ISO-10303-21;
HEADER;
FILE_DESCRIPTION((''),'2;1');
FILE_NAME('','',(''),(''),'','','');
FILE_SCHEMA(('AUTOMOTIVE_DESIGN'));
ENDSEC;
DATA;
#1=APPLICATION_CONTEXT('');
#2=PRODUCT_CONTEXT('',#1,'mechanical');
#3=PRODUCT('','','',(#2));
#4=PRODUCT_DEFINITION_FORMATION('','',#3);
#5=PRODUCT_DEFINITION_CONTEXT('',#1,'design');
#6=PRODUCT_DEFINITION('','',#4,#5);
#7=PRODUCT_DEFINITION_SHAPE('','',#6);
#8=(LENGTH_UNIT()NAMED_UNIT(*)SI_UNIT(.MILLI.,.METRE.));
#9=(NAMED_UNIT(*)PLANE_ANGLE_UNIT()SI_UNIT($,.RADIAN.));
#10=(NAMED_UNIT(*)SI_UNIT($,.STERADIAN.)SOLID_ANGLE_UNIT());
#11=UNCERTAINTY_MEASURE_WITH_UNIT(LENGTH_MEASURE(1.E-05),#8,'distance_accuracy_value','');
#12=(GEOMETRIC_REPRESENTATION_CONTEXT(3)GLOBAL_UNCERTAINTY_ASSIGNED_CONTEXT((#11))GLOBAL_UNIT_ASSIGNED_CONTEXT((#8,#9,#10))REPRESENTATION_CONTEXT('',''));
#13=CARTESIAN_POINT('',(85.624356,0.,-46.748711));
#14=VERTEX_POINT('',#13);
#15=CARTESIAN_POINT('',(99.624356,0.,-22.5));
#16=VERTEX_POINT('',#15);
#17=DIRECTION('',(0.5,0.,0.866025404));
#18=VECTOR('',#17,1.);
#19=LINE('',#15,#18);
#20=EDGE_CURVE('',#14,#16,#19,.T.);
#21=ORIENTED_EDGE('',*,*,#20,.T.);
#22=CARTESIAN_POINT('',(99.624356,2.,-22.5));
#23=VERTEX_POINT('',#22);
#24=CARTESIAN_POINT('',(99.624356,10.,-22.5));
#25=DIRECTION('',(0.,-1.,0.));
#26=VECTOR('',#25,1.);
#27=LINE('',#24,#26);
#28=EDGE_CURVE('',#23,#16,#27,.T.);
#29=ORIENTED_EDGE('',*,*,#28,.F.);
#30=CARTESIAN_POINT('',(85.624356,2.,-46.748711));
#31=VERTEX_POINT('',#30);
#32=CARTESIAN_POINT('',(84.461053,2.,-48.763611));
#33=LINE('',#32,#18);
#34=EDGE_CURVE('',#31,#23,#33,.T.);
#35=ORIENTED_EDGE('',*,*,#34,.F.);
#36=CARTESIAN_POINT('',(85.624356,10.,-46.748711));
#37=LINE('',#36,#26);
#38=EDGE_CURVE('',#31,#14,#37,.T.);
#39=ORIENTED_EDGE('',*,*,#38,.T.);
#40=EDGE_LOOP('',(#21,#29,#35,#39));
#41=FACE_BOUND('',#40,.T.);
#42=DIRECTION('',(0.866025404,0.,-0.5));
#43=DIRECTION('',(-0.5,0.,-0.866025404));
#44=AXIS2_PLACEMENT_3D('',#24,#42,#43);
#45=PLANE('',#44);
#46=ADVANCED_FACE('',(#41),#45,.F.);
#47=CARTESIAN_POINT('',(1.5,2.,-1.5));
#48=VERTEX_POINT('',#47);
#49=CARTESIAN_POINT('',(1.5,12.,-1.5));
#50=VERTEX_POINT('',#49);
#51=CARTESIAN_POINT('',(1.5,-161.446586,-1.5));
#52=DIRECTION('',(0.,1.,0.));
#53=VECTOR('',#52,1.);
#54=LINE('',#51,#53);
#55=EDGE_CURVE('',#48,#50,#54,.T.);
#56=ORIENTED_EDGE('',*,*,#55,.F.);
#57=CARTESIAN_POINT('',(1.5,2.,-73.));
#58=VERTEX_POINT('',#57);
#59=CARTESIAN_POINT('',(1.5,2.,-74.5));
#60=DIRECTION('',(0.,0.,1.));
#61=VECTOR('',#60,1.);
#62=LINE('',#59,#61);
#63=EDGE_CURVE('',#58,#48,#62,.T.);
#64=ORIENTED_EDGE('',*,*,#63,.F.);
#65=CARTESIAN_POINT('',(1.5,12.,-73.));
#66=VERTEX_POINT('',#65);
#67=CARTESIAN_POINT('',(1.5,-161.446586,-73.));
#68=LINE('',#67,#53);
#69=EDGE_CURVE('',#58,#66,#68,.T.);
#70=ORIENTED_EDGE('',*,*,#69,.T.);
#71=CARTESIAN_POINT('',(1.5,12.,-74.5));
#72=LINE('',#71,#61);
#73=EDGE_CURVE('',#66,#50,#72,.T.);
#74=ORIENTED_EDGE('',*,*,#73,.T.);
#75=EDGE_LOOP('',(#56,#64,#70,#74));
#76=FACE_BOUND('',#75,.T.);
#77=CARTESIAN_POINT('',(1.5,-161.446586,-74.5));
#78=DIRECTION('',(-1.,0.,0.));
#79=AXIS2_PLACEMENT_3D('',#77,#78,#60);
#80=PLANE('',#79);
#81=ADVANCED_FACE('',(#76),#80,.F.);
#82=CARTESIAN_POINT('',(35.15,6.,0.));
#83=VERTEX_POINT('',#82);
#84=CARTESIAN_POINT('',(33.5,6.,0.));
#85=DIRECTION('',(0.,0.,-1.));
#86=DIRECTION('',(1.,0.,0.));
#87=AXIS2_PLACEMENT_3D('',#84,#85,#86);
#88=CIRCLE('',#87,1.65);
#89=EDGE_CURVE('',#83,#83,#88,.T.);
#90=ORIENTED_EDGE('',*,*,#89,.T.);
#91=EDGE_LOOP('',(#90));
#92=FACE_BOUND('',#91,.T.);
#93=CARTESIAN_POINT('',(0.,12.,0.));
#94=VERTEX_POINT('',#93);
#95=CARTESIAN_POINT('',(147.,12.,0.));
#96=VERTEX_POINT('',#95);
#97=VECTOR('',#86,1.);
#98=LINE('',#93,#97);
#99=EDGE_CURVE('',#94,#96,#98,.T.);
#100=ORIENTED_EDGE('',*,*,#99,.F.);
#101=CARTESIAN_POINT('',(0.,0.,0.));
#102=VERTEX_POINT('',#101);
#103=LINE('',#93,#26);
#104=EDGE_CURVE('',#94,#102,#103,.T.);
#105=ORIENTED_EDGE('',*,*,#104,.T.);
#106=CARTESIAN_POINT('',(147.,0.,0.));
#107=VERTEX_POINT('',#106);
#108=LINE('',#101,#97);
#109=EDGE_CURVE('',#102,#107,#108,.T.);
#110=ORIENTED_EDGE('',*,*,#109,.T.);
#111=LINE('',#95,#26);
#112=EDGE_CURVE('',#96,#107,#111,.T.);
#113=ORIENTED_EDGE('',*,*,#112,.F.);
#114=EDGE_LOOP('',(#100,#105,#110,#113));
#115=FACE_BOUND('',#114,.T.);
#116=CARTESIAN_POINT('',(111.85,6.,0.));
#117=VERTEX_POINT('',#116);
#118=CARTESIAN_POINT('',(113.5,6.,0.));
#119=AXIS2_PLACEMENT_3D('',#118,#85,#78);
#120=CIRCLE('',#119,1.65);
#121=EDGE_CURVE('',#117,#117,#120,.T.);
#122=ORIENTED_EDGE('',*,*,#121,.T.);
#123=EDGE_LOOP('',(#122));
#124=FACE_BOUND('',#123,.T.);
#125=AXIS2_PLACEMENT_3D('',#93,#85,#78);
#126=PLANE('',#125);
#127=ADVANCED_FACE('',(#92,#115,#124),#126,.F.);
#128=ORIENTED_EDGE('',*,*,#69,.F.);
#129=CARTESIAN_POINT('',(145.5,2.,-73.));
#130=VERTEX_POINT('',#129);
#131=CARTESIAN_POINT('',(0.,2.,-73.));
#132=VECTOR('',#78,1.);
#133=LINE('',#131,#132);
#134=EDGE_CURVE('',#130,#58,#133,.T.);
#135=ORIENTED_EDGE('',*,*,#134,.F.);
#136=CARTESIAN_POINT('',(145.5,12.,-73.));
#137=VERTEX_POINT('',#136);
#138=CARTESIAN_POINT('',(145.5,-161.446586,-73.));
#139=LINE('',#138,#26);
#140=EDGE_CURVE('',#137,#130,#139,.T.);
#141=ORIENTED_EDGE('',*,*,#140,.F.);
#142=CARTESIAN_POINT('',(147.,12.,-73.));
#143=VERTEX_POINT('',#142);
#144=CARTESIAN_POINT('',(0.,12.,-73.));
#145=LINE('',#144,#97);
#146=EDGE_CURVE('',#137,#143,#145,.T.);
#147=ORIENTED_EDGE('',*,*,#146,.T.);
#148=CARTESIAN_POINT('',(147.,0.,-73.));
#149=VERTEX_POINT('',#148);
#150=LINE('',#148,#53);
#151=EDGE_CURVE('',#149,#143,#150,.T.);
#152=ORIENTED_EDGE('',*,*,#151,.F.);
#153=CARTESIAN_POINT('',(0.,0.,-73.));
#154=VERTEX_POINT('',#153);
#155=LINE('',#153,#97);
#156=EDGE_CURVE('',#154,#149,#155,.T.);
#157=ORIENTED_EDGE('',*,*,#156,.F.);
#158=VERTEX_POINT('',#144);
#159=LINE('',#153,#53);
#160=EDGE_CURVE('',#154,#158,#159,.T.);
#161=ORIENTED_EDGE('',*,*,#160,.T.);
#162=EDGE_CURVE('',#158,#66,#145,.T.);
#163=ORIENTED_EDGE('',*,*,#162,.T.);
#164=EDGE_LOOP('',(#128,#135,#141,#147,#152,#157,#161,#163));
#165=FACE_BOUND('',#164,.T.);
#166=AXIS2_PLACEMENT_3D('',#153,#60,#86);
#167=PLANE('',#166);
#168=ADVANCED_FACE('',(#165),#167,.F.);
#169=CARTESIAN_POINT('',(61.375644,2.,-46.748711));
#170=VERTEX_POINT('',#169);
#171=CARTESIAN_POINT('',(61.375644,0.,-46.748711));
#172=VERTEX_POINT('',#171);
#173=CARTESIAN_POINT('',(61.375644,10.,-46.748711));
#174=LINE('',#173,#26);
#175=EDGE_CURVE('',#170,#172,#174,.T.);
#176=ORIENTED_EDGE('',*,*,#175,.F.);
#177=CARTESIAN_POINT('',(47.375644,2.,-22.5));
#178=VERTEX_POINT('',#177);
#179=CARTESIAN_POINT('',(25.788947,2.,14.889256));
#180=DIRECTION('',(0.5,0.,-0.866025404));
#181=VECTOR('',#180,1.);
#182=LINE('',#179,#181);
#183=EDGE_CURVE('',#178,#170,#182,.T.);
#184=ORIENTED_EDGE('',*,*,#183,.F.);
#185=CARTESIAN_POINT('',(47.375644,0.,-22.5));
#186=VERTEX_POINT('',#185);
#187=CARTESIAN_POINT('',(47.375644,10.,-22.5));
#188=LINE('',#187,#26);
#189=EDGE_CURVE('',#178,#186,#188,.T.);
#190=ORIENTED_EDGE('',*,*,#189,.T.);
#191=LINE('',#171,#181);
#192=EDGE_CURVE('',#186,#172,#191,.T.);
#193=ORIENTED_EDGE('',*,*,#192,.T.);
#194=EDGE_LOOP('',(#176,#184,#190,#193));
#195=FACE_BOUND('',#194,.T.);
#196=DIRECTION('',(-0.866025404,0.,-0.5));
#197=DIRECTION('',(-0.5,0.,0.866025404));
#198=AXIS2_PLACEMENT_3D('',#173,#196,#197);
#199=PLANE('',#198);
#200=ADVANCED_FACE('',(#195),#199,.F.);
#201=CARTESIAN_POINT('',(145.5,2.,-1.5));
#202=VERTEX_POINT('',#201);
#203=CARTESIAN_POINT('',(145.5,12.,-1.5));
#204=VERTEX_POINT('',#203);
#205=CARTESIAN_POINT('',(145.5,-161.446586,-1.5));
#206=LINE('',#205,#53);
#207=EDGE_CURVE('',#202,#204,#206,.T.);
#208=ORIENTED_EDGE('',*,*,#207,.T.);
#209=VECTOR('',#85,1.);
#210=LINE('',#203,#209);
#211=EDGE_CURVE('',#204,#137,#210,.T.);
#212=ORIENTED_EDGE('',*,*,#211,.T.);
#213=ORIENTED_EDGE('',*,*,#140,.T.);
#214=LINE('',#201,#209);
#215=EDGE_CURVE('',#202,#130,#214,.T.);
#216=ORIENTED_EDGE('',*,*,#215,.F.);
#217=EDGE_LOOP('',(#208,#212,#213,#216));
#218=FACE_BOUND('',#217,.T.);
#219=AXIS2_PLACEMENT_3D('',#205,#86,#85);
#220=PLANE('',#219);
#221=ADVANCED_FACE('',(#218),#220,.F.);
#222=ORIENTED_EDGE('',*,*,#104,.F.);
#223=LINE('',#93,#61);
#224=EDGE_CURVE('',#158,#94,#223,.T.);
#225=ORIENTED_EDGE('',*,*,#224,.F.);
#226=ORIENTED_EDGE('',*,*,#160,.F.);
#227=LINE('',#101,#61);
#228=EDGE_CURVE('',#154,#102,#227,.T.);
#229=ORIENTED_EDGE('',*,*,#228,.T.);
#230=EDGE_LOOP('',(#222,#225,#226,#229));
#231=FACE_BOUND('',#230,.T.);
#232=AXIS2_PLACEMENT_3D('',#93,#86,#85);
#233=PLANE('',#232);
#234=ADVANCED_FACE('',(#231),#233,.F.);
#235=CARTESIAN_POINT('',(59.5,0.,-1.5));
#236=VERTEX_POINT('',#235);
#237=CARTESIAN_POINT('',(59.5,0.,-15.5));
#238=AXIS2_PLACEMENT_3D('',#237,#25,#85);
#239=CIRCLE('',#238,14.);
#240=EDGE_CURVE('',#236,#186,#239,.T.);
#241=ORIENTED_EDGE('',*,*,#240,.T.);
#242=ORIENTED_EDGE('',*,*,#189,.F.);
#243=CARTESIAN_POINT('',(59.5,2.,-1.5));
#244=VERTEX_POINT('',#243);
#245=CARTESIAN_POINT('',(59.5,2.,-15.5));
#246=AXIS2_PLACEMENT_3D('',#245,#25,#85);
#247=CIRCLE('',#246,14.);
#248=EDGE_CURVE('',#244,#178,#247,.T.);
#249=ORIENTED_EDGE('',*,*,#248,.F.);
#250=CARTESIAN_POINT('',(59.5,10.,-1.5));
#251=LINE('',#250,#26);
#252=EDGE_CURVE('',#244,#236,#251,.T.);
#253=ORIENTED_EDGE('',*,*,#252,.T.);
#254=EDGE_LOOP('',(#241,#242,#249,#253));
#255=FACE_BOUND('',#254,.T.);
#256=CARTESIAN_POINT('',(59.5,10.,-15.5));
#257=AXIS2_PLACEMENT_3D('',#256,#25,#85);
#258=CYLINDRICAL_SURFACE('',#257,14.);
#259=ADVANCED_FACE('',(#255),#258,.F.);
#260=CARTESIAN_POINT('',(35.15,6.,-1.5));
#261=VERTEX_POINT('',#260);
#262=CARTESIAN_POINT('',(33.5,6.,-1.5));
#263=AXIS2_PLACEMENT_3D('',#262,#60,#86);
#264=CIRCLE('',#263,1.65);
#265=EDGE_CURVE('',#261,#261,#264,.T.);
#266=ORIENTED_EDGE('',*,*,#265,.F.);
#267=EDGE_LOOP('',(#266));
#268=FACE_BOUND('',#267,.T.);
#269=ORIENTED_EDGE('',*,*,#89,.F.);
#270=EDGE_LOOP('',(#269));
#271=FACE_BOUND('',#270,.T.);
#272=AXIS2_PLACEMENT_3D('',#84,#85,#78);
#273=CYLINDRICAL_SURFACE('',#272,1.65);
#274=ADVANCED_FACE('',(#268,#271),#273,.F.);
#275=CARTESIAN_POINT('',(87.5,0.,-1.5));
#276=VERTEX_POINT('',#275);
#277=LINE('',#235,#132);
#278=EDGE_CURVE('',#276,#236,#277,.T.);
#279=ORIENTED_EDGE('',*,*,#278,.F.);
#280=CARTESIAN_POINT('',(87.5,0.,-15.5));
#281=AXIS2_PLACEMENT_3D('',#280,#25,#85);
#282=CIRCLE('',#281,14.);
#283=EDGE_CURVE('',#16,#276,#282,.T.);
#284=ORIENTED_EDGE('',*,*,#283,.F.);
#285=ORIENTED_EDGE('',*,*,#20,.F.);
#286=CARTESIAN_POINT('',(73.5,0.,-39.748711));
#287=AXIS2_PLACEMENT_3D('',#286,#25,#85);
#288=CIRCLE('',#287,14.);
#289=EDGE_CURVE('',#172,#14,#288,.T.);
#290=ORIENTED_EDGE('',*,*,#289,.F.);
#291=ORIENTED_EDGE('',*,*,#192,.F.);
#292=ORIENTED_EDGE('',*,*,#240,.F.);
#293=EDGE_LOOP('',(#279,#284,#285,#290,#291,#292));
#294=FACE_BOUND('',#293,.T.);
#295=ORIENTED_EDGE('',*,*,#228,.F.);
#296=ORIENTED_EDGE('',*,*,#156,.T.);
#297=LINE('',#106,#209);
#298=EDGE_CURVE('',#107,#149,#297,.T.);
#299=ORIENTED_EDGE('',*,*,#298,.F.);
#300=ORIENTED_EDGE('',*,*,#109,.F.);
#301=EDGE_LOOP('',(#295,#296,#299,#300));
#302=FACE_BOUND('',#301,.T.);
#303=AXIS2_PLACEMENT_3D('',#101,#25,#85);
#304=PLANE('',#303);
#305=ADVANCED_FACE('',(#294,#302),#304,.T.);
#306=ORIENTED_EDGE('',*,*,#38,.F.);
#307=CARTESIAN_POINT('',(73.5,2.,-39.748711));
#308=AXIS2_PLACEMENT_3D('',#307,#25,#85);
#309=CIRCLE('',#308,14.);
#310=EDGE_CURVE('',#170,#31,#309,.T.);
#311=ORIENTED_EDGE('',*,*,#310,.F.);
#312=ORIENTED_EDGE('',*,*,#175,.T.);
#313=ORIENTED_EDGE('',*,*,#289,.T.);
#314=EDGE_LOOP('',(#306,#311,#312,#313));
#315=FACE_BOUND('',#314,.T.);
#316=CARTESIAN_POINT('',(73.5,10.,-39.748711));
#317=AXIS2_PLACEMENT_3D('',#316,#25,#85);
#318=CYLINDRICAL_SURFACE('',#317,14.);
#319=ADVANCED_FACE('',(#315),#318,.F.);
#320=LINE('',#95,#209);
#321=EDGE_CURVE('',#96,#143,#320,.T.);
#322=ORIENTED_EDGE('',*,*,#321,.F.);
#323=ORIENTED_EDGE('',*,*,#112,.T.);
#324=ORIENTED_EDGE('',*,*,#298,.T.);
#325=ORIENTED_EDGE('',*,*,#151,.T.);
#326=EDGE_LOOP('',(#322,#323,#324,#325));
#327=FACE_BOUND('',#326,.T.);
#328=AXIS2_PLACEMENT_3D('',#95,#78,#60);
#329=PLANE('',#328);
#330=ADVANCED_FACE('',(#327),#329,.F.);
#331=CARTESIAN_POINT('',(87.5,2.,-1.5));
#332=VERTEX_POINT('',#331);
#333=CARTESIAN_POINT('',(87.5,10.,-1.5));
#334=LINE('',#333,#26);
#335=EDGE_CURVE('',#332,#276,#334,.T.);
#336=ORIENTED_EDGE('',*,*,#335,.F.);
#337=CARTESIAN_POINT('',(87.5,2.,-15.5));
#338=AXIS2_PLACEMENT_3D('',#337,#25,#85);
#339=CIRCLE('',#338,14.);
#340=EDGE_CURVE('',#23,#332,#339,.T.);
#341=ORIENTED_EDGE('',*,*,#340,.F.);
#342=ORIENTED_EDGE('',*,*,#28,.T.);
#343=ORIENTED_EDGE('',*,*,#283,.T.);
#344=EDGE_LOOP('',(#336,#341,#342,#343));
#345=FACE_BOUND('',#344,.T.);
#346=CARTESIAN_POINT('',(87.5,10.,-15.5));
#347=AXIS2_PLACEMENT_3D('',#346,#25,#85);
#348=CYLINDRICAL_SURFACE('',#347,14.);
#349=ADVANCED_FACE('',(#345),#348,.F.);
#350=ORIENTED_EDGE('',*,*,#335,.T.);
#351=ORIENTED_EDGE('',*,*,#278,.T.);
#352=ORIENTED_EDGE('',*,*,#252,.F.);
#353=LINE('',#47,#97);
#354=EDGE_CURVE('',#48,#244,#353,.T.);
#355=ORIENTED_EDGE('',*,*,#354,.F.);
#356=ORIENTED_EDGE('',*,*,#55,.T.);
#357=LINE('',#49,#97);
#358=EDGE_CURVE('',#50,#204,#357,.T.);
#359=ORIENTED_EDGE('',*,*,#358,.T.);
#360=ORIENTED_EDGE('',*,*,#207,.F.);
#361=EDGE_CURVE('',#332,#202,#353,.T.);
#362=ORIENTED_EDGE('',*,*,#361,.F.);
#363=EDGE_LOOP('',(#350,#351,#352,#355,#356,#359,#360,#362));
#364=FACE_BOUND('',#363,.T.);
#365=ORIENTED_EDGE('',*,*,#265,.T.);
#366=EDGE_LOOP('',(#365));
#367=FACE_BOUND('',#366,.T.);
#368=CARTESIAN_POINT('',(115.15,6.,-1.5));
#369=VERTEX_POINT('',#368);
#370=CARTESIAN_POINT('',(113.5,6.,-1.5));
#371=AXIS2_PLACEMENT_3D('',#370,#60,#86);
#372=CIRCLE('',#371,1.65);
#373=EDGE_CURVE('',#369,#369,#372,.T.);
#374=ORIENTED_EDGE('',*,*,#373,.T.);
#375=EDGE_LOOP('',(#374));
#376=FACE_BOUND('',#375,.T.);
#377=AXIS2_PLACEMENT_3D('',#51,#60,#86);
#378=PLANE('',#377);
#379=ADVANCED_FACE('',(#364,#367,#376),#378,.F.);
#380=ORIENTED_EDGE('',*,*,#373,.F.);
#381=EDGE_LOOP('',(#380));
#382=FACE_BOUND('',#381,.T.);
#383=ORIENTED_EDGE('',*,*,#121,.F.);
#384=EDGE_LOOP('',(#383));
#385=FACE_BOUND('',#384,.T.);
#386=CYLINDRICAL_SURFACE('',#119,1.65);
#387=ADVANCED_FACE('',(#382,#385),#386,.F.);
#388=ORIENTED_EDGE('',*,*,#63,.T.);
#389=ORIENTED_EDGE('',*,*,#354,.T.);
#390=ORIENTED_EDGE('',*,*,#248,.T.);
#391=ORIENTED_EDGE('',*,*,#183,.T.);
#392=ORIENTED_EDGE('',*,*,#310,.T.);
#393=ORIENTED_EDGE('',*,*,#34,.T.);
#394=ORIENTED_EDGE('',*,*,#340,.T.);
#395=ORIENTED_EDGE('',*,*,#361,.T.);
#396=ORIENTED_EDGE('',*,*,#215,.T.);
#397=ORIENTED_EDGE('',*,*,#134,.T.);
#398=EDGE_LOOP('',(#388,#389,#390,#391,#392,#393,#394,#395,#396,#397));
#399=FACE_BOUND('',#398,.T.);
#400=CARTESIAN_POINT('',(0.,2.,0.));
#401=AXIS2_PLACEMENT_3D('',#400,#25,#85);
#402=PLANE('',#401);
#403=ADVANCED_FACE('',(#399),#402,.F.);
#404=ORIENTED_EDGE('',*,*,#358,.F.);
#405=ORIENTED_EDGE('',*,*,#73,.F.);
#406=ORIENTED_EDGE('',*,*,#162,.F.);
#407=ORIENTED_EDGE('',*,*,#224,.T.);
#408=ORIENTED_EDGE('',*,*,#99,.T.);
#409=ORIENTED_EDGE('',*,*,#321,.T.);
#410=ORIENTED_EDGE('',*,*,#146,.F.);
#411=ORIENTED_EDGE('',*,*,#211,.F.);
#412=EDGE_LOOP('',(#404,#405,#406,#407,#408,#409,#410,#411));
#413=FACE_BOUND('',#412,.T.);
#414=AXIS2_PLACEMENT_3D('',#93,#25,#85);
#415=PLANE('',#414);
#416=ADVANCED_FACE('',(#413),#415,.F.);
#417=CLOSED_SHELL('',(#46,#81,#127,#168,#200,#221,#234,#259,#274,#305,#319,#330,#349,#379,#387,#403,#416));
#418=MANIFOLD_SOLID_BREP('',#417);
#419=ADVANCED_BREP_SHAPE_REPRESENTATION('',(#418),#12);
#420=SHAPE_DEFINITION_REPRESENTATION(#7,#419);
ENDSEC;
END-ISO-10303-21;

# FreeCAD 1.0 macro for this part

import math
import FreeCAD as App
import Part
import Sketcher
from FreeCAD import Vector
Q = App.Units.Quantity

doc = App.newDocument("Part")
body = doc.addObject("PartDesign::Body", "Body")

sketch1 = body.newObject("Sketcher::SketchObject", "Sketch")
sketch1.AttachmentSupport = (doc.getObject("XZ_Plane"), [""])
sketch1.MapMode = "FlatFace"
sketch1.addGeometry([
    Part.LineSegment(Vector(0, -76, 0), Vector(0, 0, 0)),
    Part.LineSegment(Vector(0, 0, 0), Vector(147, 0, 0)),
    Part.LineSegment(Vector(147, 0, 0), Vector(147, -76, 0)),
    Part.LineSegment(Vector(147, -76, 0), Vector(0, -76, 0)),
], False)
sketch1.addConstraint([
    Sketcher.Constraint("Coincident", 0, 2, 1, 1),
    Sketcher.Constraint("Coincident", 1, 2, 2, 1),
    Sketcher.Constraint("Coincident", 2, 2, 3, 1),
    Sketcher.Constraint("Coincident", 3, 2, 0, 1),
    Sketcher.Constraint("Vertical", 0),
    Sketcher.Constraint("Horizontal", 1),
    Sketcher.Constraint("Vertical", 2),
    Sketcher.Constraint("Horizontal", 3),
    Sketcher.Constraint("Coincident", 0, 2, -1, 1),
    Sketcher.Constraint("DistanceX", 1, 1, 1, 2, Q("147 mm")),
    Sketcher.Constraint("DistanceY", 0, 1, 0, 2, Q("76 mm")),
])
pad1 = body.newObject("PartDesign::Pad", "Pad")
pad1.Profile = sketch1
pad1.Length = 12
pad1.Reversed = True

sketch2 = body.newObject("Sketcher::SketchObject", "Sketch001")
sketch2.AttachmentSupport = (doc.getObject("XZ_Plane"), [""])
sketch2.MapMode = "FlatFace"
sketch2.AttachmentOffset = App.Placement(Vector(0, 0, -12), App.Rotation())
sketch2.addGeometry([
    Part.LineSegment(Vector(2, -74, 0), Vector(2, -2, 0)),
    Part.LineSegment(Vector(2, -2, 0), Vector(146, -2, 0)),
    Part.LineSegment(Vector(146, -2, 0), Vector(146, -74, 0)),
    Part.LineSegment(Vector(146, -74, 0), Vector(2, -74, 0)),
], False)
sketch2.addConstraint([
    Sketcher.Constraint("Coincident", 0, 2, 1, 1),
    Sketcher.Constraint("Coincident", 1, 2, 2, 1),
    Sketcher.Constraint("Coincident", 2, 2, 3, 1),
    Sketcher.Constraint("Coincident", 3, 2, 0, 1),
    Sketcher.Constraint("Vertical", 0),
    Sketcher.Constraint("Horizontal", 1),
    Sketcher.Constraint("Vertical", 2),
    Sketcher.Constraint("Horizontal", 3),
    Sketcher.Constraint("DistanceX", 1, 1, 1, 2, Q("144 mm")),
    Sketcher.Constraint("DistanceY", 0, 1, 0, 2, Q("73 mm")),
    Sketcher.Constraint("DistanceX", -1, 1, 0, 2, Q("1.5 mm")),
    Sketcher.Constraint("DistanceY", 0, 2, -1, 1, Q("1.5 mm")),
])
pocket1 = body.newObject("PartDesign::Pocket", "Pocket")
pocket1.Profile = sketch2
pocket1.Length = 10
pocket1.Reversed = True

sketch3 = body.newObject("Sketcher::SketchObject", "Sketch002")
sketch3.AttachmentSupport = (doc.getObject("XY_Plane"), [""])
sketch3.MapMode = "FlatFace"
sketch3.AttachmentOffset = App.Placement(Vector(0, 0, -76), App.Rotation())
sketch3.addGeometry([
    Part.Circle(Vector(113.5, 6, 0), Vector(0, 0, 1), 1.6),
    Part.Circle(Vector(33.5, 6, 0), Vector(0, 0, 1), 1.6),
], False)
sketch3.addConstraint([
    Sketcher.Constraint("Equal", 0, 1),
    Sketcher.Constraint("Horizontal", 0, 3, 1, 3),
    Sketcher.Constraint("Diameter", 0, Q("3.3 mm")),
    Sketcher.Constraint("DistanceY", -1, 1, 0, 3, Q("6 mm")),
    Sketcher.Constraint("DistanceX", 1, 3, 0, 3, Q("80 mm")),
    Sketcher.Constraint("DistanceX", -1, 1, 0, 3, Q("113.5 mm")),
])
pocket2 = body.newObject("PartDesign::Pocket", "Pocket001")
pocket2.Profile = sketch3
pocket2.Type = "ThroughAll"
pocket2.Reversed = True

sketch4 = body.newObject("Sketcher::SketchObject", "Sketch003")
sketch4.AttachmentSupport = (doc.getObject("XZ_Plane"), [""])
sketch4.MapMode = "FlatFace"
sketch4.addGeometry([
    Part.LineSegment(Vector(47, -22, 0), Vector(61, -47, 0)),
    Part.ArcOfCircle(Part.Circle(Vector(74, -40, 0), Vector(0, 0, 1), 14), math.radians(-150), math.radians(-30)),
    Part.LineSegment(Vector(86, -47, 0), Vector(100, -22, 0)),
    Part.ArcOfCircle(Part.Circle(Vector(88, -16, 0), Vector(0, 0, 1), 14), math.radians(-30), math.radians(90)),
    Part.LineSegment(Vector(88, -2, 0), Vector(60, -2, 0)),
    Part.ArcOfCircle(Part.Circle(Vector(60, -16, 0), Vector(0, 0, 1), 14), math.radians(90), math.radians(210)),
], False)
sketch4.addConstraint([
    Sketcher.Constraint("Tangent", 0, 2, 1, 1),
    Sketcher.Constraint("Tangent", 1, 2, 2, 1),
    Sketcher.Constraint("Tangent", 2, 2, 3, 1),
    Sketcher.Constraint("Tangent", 3, 2, 4, 1),
    Sketcher.Constraint("Tangent", 4, 2, 5, 1),
    Sketcher.Constraint("Tangent", 5, 2, 0, 1),
    Sketcher.Constraint("Horizontal", 4),
    Sketcher.Constraint("Equal", 1, 3),
    Sketcher.Constraint("Equal", 3, 5),
    Sketcher.Constraint("Horizontal", 0, 2, 1, 2),
    Sketcher.Constraint("Radius", 1, Q("14 mm")),
    Sketcher.Constraint("DistanceX", 4, 2, 4, 1, Q("28 mm")),
    Sketcher.Constraint("Angle", 0, Q("-60 deg")),
    Sketcher.Constraint("DistanceX", -1, 1, 1, 3, Q("73.5 mm")),
    Sketcher.Constraint("DistanceY", 3, 3, -1, 1, Q("15.5 mm")),
])
pocket3 = body.newObject("PartDesign::Pocket", "Pocket002")
pocket3.Profile = sketch4
pocket3.Length = 10

sketch5 = body.newObject("Sketcher::SketchObject", "Sketch004")
sketch5.AttachmentSupport = (doc.getObject("XZ_Plane"), [""])
sketch5.MapMode = "FlatFace"
sketch5.AttachmentOffset = App.Placement(Vector(0, 0, -12), App.Rotation())
sketch5.addGeometry([
    Part.LineSegment(Vector(0, -76, 0), Vector(0, -73, 0)),
    Part.LineSegment(Vector(0, -73, 0), Vector(147, -73, 0)),
    Part.LineSegment(Vector(147, -73, 0), Vector(147, -76, 0)),
    Part.LineSegment(Vector(147, -76, 0), Vector(0, -76, 0)),
], False)
sketch5.addConstraint([
    Sketcher.Constraint("Coincident", 0, 2, 1, 1),
    Sketcher.Constraint("Coincident", 1, 2, 2, 1),
    Sketcher.Constraint("Coincident", 2, 2, 3, 1),
    Sketcher.Constraint("Coincident", 3, 2, 0, 1),
    Sketcher.Constraint("Vertical", 0),
    Sketcher.Constraint("Horizontal", 1),
    Sketcher.Constraint("Vertical", 2),
    Sketcher.Constraint("Horizontal", 3),
    Sketcher.Constraint("PointOnObject", 0, 2, -2),
    Sketcher.Constraint("DistanceX", 1, 1, 1, 2, Q("147 mm")),
    Sketcher.Constraint("DistanceY", 0, 1, 0, 2, Q("3 mm")),
    Sketcher.Constraint("DistanceY", 0, 2, -1, 1, Q("73 mm")),
])
pocket4 = body.newObject("PartDesign::Pocket", "Pocket003")
pocket4.Profile = sketch5
pocket4.Type = "ThroughAll"
pocket4.Reversed = True

doc.recompute()
